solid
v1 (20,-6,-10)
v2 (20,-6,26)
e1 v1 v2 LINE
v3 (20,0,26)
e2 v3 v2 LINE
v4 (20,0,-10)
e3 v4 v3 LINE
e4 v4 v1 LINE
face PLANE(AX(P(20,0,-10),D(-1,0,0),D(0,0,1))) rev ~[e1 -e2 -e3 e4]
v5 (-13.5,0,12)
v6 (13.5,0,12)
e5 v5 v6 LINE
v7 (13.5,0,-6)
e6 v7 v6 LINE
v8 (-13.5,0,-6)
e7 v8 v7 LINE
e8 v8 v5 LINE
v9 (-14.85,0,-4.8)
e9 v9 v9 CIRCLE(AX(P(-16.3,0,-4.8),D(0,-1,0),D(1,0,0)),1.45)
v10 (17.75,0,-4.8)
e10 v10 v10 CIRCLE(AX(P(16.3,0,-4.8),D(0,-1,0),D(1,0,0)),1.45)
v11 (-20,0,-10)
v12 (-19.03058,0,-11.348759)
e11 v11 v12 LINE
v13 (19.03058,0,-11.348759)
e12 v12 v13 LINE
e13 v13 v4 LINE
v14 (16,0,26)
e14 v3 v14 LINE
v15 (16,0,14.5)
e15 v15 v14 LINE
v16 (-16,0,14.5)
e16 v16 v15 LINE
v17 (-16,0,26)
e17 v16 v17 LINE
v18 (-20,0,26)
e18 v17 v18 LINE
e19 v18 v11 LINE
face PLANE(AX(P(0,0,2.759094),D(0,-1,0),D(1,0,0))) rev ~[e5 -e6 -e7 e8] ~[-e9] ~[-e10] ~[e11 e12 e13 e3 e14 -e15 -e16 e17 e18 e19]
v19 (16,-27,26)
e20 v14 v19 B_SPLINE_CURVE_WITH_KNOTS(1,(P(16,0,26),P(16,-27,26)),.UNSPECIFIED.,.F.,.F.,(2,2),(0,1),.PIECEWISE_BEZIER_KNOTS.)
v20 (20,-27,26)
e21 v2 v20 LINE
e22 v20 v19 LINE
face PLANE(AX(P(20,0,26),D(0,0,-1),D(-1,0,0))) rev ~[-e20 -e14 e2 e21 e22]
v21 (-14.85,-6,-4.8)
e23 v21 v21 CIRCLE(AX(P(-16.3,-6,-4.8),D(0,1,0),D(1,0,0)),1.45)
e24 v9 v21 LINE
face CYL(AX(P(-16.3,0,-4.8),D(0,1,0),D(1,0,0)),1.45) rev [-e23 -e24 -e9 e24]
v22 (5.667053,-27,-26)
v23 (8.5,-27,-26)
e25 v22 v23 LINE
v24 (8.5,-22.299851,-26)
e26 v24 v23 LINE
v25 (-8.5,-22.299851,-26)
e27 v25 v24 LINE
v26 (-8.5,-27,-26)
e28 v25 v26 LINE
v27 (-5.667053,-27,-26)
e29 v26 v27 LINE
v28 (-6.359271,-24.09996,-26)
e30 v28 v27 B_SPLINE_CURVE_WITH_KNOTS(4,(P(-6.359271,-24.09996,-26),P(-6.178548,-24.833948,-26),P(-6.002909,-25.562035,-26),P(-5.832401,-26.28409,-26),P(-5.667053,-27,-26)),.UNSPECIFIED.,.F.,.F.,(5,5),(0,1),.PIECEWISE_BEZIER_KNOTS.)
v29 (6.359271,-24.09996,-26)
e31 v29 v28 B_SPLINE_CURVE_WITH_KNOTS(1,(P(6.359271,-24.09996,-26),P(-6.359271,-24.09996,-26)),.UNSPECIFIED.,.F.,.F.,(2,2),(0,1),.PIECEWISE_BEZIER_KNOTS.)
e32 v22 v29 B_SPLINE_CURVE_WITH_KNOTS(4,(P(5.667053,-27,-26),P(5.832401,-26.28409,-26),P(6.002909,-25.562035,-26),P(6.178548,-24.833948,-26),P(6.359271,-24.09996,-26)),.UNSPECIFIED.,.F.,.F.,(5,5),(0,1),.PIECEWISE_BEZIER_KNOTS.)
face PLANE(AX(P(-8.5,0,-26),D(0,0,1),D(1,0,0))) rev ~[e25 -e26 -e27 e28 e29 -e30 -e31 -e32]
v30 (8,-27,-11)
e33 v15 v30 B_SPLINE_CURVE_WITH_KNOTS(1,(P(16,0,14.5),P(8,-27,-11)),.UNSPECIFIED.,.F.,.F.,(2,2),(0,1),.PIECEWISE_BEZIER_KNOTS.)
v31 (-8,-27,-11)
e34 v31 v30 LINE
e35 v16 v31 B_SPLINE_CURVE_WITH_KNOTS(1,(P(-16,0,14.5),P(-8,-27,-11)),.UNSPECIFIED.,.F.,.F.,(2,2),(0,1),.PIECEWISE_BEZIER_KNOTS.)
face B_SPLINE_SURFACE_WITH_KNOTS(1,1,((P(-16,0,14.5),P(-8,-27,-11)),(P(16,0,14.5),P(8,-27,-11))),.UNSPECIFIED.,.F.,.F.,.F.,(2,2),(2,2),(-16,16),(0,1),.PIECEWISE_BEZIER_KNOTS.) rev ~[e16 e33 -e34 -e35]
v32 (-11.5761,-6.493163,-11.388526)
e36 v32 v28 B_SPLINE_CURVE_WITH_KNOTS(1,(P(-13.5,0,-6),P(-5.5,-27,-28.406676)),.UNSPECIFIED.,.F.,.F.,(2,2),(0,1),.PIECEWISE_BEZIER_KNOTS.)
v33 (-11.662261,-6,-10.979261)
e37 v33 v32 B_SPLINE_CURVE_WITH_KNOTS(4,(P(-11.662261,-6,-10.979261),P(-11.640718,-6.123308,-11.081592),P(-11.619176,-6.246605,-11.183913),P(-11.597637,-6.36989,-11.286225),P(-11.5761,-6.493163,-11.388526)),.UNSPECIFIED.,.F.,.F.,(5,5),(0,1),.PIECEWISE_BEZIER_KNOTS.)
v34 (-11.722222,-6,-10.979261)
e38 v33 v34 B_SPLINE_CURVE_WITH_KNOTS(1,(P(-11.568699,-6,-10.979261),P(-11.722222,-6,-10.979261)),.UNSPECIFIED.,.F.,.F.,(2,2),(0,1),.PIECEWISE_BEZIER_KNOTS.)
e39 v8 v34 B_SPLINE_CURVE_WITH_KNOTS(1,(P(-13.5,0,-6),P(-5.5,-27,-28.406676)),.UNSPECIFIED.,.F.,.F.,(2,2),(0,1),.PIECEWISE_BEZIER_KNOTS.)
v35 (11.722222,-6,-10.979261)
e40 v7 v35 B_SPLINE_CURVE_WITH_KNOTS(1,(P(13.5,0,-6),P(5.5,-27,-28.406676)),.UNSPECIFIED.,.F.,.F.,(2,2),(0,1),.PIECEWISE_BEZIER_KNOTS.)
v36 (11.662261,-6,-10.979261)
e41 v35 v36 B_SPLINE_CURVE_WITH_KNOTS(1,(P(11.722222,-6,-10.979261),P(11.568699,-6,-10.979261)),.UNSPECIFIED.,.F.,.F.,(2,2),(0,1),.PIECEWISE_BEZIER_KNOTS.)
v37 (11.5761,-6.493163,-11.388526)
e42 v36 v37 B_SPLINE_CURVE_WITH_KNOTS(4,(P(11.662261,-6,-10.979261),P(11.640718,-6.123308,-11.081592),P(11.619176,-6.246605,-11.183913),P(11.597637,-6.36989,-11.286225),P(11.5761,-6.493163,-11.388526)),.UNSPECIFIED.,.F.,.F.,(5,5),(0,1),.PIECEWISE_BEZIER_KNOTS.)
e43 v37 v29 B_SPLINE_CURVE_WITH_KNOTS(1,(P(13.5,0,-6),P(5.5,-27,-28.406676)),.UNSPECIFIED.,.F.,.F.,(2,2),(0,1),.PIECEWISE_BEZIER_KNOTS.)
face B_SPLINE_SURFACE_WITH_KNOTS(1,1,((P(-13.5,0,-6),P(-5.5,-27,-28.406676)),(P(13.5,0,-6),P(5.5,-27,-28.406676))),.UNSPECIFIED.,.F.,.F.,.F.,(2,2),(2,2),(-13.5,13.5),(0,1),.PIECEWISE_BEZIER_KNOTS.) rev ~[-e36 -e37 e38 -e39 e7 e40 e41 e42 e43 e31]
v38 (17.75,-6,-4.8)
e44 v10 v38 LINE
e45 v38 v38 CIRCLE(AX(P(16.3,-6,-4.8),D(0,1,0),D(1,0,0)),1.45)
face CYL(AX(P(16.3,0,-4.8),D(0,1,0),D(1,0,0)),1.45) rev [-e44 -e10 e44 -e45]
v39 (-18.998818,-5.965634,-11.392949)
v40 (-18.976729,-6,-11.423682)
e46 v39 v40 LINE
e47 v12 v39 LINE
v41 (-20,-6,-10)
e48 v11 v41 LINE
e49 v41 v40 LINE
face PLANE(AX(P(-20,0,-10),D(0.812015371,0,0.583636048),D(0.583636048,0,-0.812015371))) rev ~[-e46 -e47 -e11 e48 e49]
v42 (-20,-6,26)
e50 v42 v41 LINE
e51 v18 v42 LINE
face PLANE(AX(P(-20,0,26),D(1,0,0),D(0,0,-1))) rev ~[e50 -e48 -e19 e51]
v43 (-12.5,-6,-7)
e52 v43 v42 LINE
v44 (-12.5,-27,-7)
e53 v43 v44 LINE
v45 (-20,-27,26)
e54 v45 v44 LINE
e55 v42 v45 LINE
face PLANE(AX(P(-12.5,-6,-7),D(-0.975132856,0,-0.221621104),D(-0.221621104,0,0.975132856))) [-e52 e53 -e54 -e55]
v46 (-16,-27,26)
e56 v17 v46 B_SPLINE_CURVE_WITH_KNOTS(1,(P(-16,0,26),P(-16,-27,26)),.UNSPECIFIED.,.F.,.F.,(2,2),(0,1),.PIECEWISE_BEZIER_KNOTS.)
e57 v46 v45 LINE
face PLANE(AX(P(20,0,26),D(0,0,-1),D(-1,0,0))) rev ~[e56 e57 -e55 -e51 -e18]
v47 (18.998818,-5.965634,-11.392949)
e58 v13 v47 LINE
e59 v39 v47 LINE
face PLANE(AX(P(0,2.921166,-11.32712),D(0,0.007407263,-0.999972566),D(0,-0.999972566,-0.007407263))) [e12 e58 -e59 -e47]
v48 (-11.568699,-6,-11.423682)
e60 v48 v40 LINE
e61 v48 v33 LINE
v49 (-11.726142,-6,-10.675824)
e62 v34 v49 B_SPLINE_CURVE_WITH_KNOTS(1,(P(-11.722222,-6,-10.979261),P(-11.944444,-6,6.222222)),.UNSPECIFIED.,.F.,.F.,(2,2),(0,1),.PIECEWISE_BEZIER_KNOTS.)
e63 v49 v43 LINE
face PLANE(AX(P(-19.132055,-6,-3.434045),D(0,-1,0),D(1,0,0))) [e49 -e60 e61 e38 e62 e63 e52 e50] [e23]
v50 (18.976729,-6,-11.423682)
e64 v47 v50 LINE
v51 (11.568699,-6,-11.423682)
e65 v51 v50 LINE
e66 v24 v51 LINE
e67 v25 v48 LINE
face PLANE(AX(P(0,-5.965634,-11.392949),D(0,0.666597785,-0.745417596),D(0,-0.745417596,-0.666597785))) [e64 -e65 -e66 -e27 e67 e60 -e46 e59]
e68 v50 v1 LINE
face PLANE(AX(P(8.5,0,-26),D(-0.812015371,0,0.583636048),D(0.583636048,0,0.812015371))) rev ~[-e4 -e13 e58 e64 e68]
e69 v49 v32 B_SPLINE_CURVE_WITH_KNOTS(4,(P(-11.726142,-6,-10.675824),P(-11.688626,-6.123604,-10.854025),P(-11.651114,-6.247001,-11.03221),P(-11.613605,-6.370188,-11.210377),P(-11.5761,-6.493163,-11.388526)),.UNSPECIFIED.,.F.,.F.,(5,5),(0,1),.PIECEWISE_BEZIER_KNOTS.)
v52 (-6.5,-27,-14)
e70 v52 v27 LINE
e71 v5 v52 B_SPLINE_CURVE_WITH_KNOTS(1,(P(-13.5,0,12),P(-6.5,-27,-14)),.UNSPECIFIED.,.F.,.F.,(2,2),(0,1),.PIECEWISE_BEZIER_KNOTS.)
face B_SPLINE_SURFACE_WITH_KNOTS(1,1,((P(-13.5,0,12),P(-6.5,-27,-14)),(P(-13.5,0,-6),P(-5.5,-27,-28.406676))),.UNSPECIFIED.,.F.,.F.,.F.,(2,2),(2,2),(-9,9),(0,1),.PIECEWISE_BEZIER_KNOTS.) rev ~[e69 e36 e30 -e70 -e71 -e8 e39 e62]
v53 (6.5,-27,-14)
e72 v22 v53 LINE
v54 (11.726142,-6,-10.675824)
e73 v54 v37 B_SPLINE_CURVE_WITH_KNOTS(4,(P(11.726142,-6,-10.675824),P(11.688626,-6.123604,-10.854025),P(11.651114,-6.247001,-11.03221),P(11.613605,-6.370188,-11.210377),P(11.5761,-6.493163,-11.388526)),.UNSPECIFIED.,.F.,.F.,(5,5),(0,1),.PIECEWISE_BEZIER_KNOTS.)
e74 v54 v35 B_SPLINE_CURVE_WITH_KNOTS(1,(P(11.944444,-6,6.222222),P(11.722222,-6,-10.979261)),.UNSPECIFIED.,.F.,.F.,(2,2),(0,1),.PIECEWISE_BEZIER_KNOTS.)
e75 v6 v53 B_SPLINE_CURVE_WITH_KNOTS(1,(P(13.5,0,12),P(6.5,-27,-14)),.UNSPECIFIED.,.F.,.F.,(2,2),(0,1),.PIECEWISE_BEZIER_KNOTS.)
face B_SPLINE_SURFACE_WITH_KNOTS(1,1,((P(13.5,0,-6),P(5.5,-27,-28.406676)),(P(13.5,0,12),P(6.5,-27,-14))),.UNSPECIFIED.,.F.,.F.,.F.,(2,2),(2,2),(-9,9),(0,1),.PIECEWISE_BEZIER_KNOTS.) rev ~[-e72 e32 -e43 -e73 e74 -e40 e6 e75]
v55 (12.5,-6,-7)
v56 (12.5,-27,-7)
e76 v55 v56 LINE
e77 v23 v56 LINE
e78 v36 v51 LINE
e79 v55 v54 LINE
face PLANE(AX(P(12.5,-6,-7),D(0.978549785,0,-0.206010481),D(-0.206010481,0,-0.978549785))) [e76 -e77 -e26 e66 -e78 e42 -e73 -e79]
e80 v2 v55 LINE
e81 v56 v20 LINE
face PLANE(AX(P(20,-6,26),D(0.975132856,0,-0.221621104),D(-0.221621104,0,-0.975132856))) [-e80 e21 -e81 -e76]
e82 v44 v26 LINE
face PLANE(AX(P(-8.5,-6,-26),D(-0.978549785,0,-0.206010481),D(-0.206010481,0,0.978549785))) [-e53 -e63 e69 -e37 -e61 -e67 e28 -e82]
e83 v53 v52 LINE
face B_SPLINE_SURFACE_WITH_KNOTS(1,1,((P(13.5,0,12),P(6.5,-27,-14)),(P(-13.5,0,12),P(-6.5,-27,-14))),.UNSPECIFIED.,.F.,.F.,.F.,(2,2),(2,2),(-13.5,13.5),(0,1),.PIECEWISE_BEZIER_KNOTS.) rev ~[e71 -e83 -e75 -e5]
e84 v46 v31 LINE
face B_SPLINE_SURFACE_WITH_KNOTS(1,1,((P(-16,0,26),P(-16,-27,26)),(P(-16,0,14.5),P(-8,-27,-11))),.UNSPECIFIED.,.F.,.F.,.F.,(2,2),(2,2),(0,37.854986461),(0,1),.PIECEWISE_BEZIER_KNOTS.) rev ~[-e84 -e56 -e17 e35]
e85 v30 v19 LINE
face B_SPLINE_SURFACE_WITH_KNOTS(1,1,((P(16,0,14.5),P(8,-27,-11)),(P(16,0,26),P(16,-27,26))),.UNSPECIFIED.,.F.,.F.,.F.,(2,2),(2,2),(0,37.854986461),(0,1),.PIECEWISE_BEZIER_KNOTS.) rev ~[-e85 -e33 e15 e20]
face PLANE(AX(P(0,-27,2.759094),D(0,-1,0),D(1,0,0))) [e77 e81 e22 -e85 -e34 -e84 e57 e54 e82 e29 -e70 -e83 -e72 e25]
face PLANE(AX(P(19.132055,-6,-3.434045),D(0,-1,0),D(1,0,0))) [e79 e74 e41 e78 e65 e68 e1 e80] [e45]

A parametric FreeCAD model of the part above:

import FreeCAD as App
import Part
import Sketcher

doc = App.newDocument("Part")
body = doc.addObject("PartDesign::Body", "Body")

sketch1 = doc.addObject("Sketcher::SketchObject", "Sketch")
body.addObject(sketch1)
sketch1.AttachmentSupport = (doc.XZ_Plane, [""])
sketch1.MapMode = "FlatFace"
sketch1.addGeometry(Part.LineSegment(App.Vector(-8.5, -26, 0), App.Vector(8.5, -26, 0)), False)
sketch1.addGeometry(Part.LineSegment(App.Vector(8.5, -26, 0), App.Vector(20, -10, 0)), False)
sketch1.addGeometry(Part.LineSegment(App.Vector(20, -10, 0), App.Vector(20, 26, 0)), False)
sketch1.addGeometry(Part.LineSegment(App.Vector(20, 26, 0), App.Vector(-20, 26, 0)), False)
sketch1.addGeometry(Part.LineSegment(App.Vector(-20, 26, 0), App.Vector(-20, -10, 0)), False)
sketch1.addGeometry(Part.LineSegment(App.Vector(-20, -10, 0), App.Vector(-8.5, -26, 0)), False)
sketch1.addGeometry(Part.Circle(App.Vector(-16.3, -4.8, 0), App.Vector(0, 0, 1), 1.4), False)
sketch1.addGeometry(Part.Circle(App.Vector(16.3, -4.8, 0), App.Vector(0, 0, 1), 1.4), False)
sketch1.addConstraint(Sketcher.Constraint("Coincident", 0, 2, 1, 1))
sketch1.addConstraint(Sketcher.Constraint("Coincident", 1, 2, 2, 1))
sketch1.addConstraint(Sketcher.Constraint("Coincident", 2, 2, 3, 1))
sketch1.addConstraint(Sketcher.Constraint("Coincident", 3, 2, 4, 1))
sketch1.addConstraint(Sketcher.Constraint("Coincident", 4, 2, 5, 1))
sketch1.addConstraint(Sketcher.Constraint("Coincident", 5, 2, 0, 1))
sketch1.addConstraint(Sketcher.Constraint("Horizontal", 0))
sketch1.addConstraint(Sketcher.Constraint("Vertical", 2))
sketch1.addConstraint(Sketcher.Constraint("Horizontal", 3))
sketch1.addConstraint(Sketcher.Constraint("Vertical", 4))
sketch1.addConstraint(Sketcher.Constraint("Equal", 6, 7))
sketch1.addConstraint(Sketcher.Constraint("Symmetric", 6, 3, 7, 3, -2))
sketch1.addConstraint(Sketcher.Constraint("Symmetric", 1, 2, 4, 2, -2))
sketch1.addConstraint(Sketcher.Constraint("Equal", 1, 5))
sketch1.addConstraint(Sketcher.Constraint("Diameter", 6, 2.9))
sketch1.addConstraint(Sketcher.Constraint("DistanceX", 0, 1, 0, 2, 17.0))
sketch1.addConstraint(Sketcher.Constraint("DistanceX", 3, 2, 3, 1, 40.0))
sketch1.addConstraint(Sketcher.Constraint("DistanceY", 2, 1, 2, 2, 36.0))
sketch1.addConstraint(Sketcher.Constraint("DistanceY", 0, 2, -1, 1, 26.0))
sketch1.addConstraint(Sketcher.Constraint("DistanceY", 1, 2, -1, 1, 10.0))
sketch1.addConstraint(Sketcher.Constraint("DistanceX", 6, 3, -1, 1, 16.3))
sketch1.addConstraint(Sketcher.Constraint("DistanceY", 6, 3, -1, 1, 4.8))
pad1 = doc.addObject("PartDesign::Pad", "Pad")
body.addObject(pad1)
pad1.Profile = sketch1
pad1.Length = 27

sketch2 = doc.addObject("Sketcher::SketchObject", "Sketch001")
body.addObject(sketch2)
sketch2.AttachmentSupport = (doc.XZ_Plane, [""])
sketch2.MapMode = "FlatFace"
sketch2.AttachmentOffset = App.Placement(App.Vector(0, 0, 6), App.Rotation())
sketch2.addGeometry(Part.LineSegment(App.Vector(26, -25, 0), App.Vector(26, 0, 0)), False)
sketch2.addGeometry(Part.LineSegment(App.Vector(26, 0, 0), App.Vector(20, 26, 0)), False)
sketch2.addGeometry(Part.LineSegment(App.Vector(20, 26, 0), App.Vector(12, -7, 0)), False)
sketch2.addGeometry(Part.LineSegment(App.Vector(12, -7, 0), App.Vector(8, -26, 0)), False)
sketch2.addGeometry(Part.LineSegment(App.Vector(8, -26, 0), App.Vector(26, -25, 0)), False)
sketch2.addGeometry(Part.LineSegment(App.Vector(-8, -26, 0), App.Vector(-12, -7, 0)), False)
sketch2.addGeometry(Part.LineSegment(App.Vector(-12, -7, 0), App.Vector(-20, 26, 0)), False)
sketch2.addGeometry(Part.LineSegment(App.Vector(-20, 26, 0), App.Vector(-26, 0, 0)), False)
sketch2.addGeometry(Part.LineSegment(App.Vector(-26, 0, 0), App.Vector(-26, -25, 0)), False)
sketch2.addGeometry(Part.LineSegment(App.Vector(-26, -25, 0), App.Vector(-8, -26, 0)), False)
sketch2.addConstraint(Sketcher.Constraint("Coincident", 0, 2, 1, 1))
sketch2.addConstraint(Sketcher.Constraint("Coincident", 1, 2, 2, 1))
sketch2.addConstraint(Sketcher.Constraint("Coincident", 2, 2, 3, 1))
sketch2.addConstraint(Sketcher.Constraint("Coincident", 3, 2, 4, 1))
sketch2.addConstraint(Sketcher.Constraint("Coincident", 4, 2, 0, 1))
sketch2.addConstraint(Sketcher.Constraint("Coincident", 5, 2, 6, 1))
sketch2.addConstraint(Sketcher.Constraint("Coincident", 6, 2, 7, 1))
sketch2.addConstraint(Sketcher.Constraint("Coincident", 7, 2, 8, 1))
sketch2.addConstraint(Sketcher.Constraint("Coincident", 8, 2, 9, 1))
sketch2.addConstraint(Sketcher.Constraint("Coincident", 9, 2, 5, 1))
sketch2.addConstraint(Sketcher.Constraint("Symmetric", 2, 2, 5, 2, -2))
sketch2.addConstraint(Sketcher.Constraint("Symmetric", 1, 2, 6, 2, -2))
sketch2.addConstraint(Sketcher.Constraint("Symmetric", 0, 2, 7, 2, -2))
sketch2.addConstraint(Sketcher.Constraint("Symmetric", 4, 2, 8, 2, -2))
sketch2.addConstraint(Sketcher.Constraint("Symmetric", 3, 2, 9, 2, -2))
sketch2.addConstraint(Sketcher.Constraint("DistanceX", -1, 1, 1, 2, 20.0))
sketch2.addConstraint(Sketcher.Constraint("DistanceY", -1, 1, 1, 2, 26.0))
sketch2.addConstraint(Sketcher.Constraint("DistanceY", 2, 2, -1, 1, 7.0))
sketch2.addConstraint(Sketcher.Constraint("DistanceY", 3, 2, -1, 1, 26.0))
sketch2.addConstraint(Sketcher.Constraint("DistanceY", 4, 2, -1, 1, 25.0))
sketch2.addConstraint(Sketcher.Constraint("DistanceX", 3, 2, 2, 2, 4.0))
sketch2.addConstraint(Sketcher.Constraint("DistanceX", 3, 2, 4, 2, 18.0))
sketch2.addConstraint(Sketcher.Constraint("DistanceX", 5, 2, 2, 2, 25.0))
sketch2.addConstraint(Sketcher.Constraint("Distance", 1, 26.8))
sketch2.addConstraint(Sketcher.Constraint("Distance", 0, 25.000181))
pocket1 = doc.addObject("PartDesign::Pocket", "Pocket")
body.addObject(pocket1)
pocket1.Profile = sketch2
pocket1.Length = 23
pocket1.Reversed = True

sketch3 = doc.addObject("Sketcher::SketchObject", "Sketch002")
body.addObject(sketch3)
sketch3.AttachmentSupport = (doc.XZ_Plane, [""])
sketch3.MapMode = "FlatFace"
sketch3.addGeometry(Part.LineSegment(App.Vector(-16, 26, 0), App.Vector(-16, 14, 0)), False)
sketch3.addGeometry(Part.LineSegment(App.Vector(-16, 14, 0), App.Vector(16, 14, 0)), False)
sketch3.addGeometry(Part.LineSegment(App.Vector(16, 14, 0), App.Vector(16, 26, 0)), False)
sketch3.addGeometry(Part.LineSegment(App.Vector(16, 26, 0), App.Vector(-16, 26, 0)), False)
sketch3.addConstraint(Sketcher.Constraint("Coincident", 0, 2, 1, 1))
sketch3.addConstraint(Sketcher.Constraint("Coincident", 1, 2, 2, 1))
sketch3.addConstraint(Sketcher.Constraint("Coincident", 2, 2, 3, 1))
sketch3.addConstraint(Sketcher.Constraint("Coincident", 3, 2, 0, 1))
sketch3.addConstraint(Sketcher.Constraint("Vertical", 0))
sketch3.addConstraint(Sketcher.Constraint("Horizontal", 1))
sketch3.addConstraint(Sketcher.Constraint("Vertical", 2))
sketch3.addConstraint(Sketcher.Constraint("Horizontal", 3))
sketch3.addConstraint(Sketcher.Constraint("DistanceX", 1, 1, 1, 2, 32.0))
sketch3.addConstraint(Sketcher.Constraint("DistanceY", 0, 2, 0, 1, 11.5))
sketch3.addConstraint(Sketcher.Constraint("DistanceX", 0, 2, -1, 1, 16.0))
sketch3.addConstraint(Sketcher.Constraint("DistanceY", -1, 1, 2, 2, 26.0))

sketch4 = doc.addObject("Sketcher::SketchObject", "Sketch003")
body.addObject(sketch4)
sketch4.AttachmentSupport = (doc.XZ_Plane, [""])
sketch4.MapMode = "FlatFace"
sketch4.AttachmentOffset = App.Placement(App.Vector(0, 0, 27), App.Rotation())
sketch4.addGeometry(Part.LineSegment(App.Vector(8, -11, 0), App.Vector(16, 26, 0)), False)
sketch4.addGeometry(Part.LineSegment(App.Vector(16, 26, 0), App.Vector(-16, 26, 0)), False)
sketch4.addGeometry(Part.LineSegment(App.Vector(-16, 26, 0), App.Vector(-8, -11, 0)), False)
sketch4.addGeometry(Part.LineSegment(App.Vector(-8, -11, 0), App.Vector(8, -11, 0)), False)
sketch4.addConstraint(Sketcher.Constraint("Coincident", 0, 2, 1, 1))
sketch4.addConstraint(Sketcher.Constraint("Coincident", 1, 2, 2, 1))
sketch4.addConstraint(Sketcher.Constraint("Coincident", 2, 2, 3, 1))
sketch4.addConstraint(Sketcher.Constraint("Coincident", 3, 2, 0, 1))
sketch4.addConstraint(Sketcher.Constraint("Horizontal", 1))
sketch4.addConstraint(Sketcher.Constraint("Horizontal", 3))
sketch4.addConstraint(Sketcher.Constraint("Equal", 0, 2))
sketch4.addConstraint(Sketcher.Constraint("DistanceX", 1, 2, 1, 1, 32.0))
sketch4.addConstraint(Sketcher.Constraint("DistanceX", 3, 1, 3, 2, 16.0))
sketch4.addConstraint(Sketcher.Constraint("DistanceX", -1, 1, 0, 2, 16.0))
sketch4.addConstraint(Sketcher.Constraint("DistanceY", -1, 1, 0, 2, 26.0))
sketch4.addConstraint(Sketcher.Constraint("DistanceY", 2, 2, -1, 1, 11.0))

subtractiveloft = doc.addObject("PartDesign::SubtractiveLoft", "SubtractiveLoft")
body.addObject(subtractiveloft)
subtractiveloft.Profile = sketch3
subtractiveloft.Sections = [sketch4]

sketch5 = doc.addObject("Sketcher::SketchObject", "Sketch004")
body.addObject(sketch5)
sketch5.AttachmentSupport = (doc.YZ_Plane, [""])
sketch5.MapMode = "FlatFace"
sketch5.addGeometry(Part.LineSegment(App.Vector(-6, -11, 0), App.Vector(-27, -30, 0)), False)
sketch5.addGeometry(Part.LineSegment(App.Vector(-27, -30, 0), App.Vector(4, -39, 0)), False)
sketch5.addGeometry(Part.LineSegment(App.Vector(4, -39, 0), App.Vector(3, -11, 0)), False)
sketch5.addGeometry(Part.LineSegment(App.Vector(3, -11, 0), App.Vector(-6, -11, 0)), False)
sketch5.addConstraint(Sketcher.Constraint("Coincident", 0, 2, 1, 1))
sketch5.addConstraint(Sketcher.Constraint("Coincident", 1, 2, 2, 1))
sketch5.addConstraint(Sketcher.Constraint("Coincident", 2, 2, 3, 1))
sketch5.addConstraint(Sketcher.Constraint("Coincident", 3, 2, 0, 1))
sketch5.addConstraint(Sketcher.Constraint("DistanceX", 3, 2, 2, 2, 8.8868))
sketch5.addConstraint(Sketcher.Constraint("Distance", 0, 28.473342))
sketch5.addConstraint(Sketcher.Constraint("DistanceY", 1, 2, -1, 1, 39.435741))
sketch5.addConstraint(Sketcher.Constraint("DistanceY", 2, 2, -1, 1, 11.32712))
sketch5.addConstraint(Sketcher.Constraint("DistanceY", 3, 2, -1, 1, 11.392949))
sketch5.addConstraint(Sketcher.Constraint("DistanceX", 0, 2, 2, 2, 30.11133))
sketch5.addConstraint(Sketcher.Constraint("Distance", 1, 32.265932))
sketch5.addConstraint(Sketcher.Constraint("DistanceX", 0, 2, -1, 1, 27.190164))
pocket2 = doc.addObject("PartDesign::Pocket", "Pocket001")
body.addObject(pocket2)
pocket2.Profile = sketch5
pocket2.Type = "ThroughAll"
pocket2.Midplane = True

sketch6 = doc.addObject("Sketcher::SketchObject", "Sketch005")
body.addObject(sketch6)
sketch6.AttachmentSupport = (doc.XZ_Plane, [""])
sketch6.MapMode = "FlatFace"
sketch6.addGeometry(Part.LineSegment(App.Vector(-14, 12, 0), App.Vector(-14, -6, 0)), False)
sketch6.addGeometry(Part.LineSegment(App.Vector(-14, -6, 0), App.Vector(14, -6, 0)), False)
sketch6.addGeometry(Part.LineSegment(App.Vector(14, -6, 0), App.Vector(14, 12, 0)), False)
sketch6.addGeometry(Part.LineSegment(App.Vector(14, 12, 0), App.Vector(-14, 12, 0)), False)
sketch6.addConstraint(Sketcher.Constraint("Coincident", 0, 2, 1, 1))
sketch6.addConstraint(Sketcher.Constraint("Coincident", 1, 2, 2, 1))
sketch6.addConstraint(Sketcher.Constraint("Coincident", 2, 2, 3, 1))
sketch6.addConstraint(Sketcher.Constraint("Coincident", 3, 2, 0, 1))
sketch6.addConstraint(Sketcher.Constraint("Vertical", 0))
sketch6.addConstraint(Sketcher.Constraint("Horizontal", 1))
sketch6.addConstraint(Sketcher.Constraint("Vertical", 2))
sketch6.addConstraint(Sketcher.Constraint("Horizontal", 3))
sketch6.addConstraint(Sketcher.Constraint("DistanceX", 1, 1, 1, 2, 27.0))
sketch6.addConstraint(Sketcher.Constraint("DistanceY", 0, 2, 0, 1, 18.0))
sketch6.addConstraint(Sketcher.Constraint("DistanceY", 0, 2, -1, 1, 6.0))
sketch6.addConstraint(Sketcher.Constraint("DistanceX", 0, 2, -1, 1, 13.5))

sketch7 = doc.addObject("Sketcher::SketchObject", "Sketch006")
body.addObject(sketch7)
sketch7.AttachmentSupport = (doc.XZ_Plane, [""])
sketch7.MapMode = "FlatFace"
sketch7.AttachmentOffset = App.Placement(App.Vector(0, 0, 27), App.Rotation())
sketch7.addGeometry(Part.LineSegment(App.Vector(6, -28, 0), App.Vector(6, -14, 0)), False)
sketch7.addGeometry(Part.LineSegment(App.Vector(6, -14, 0), App.Vector(-6, -14, 0)), False)
sketch7.addGeometry(Part.LineSegment(App.Vector(-6, -14, 0), App.Vector(-6, -28, 0)), False)
sketch7.addGeometry(Part.LineSegment(App.Vector(-6, -28, 0), App.Vector(6, -28, 0)), False)
sketch7.addConstraint(Sketcher.Constraint("Coincident", 0, 2, 1, 1))
sketch7.addConstraint(Sketcher.Constraint("Coincident", 1, 2, 2, 1))
sketch7.addConstraint(Sketcher.Constraint("Coincident", 2, 2, 3, 1))
sketch7.addConstraint(Sketcher.Constraint("Coincident", 3, 2, 0, 1))
sketch7.addConstraint(Sketcher.Constraint("Horizontal", 1))
sketch7.addConstraint(Sketcher.Constraint("Horizontal", 3))
sketch7.addConstraint(Sketcher.Constraint("Equal", 0, 2))
sketch7.addConstraint(Sketcher.Constraint("DistanceX", 1, 2, 1, 1, 13.0))
sketch7.addConstraint(Sketcher.Constraint("DistanceX", 3, 1, 3, 2, 11.0))
sketch7.addConstraint(Sketcher.Constraint("DistanceY", 0, 2, -1, 1, 14.0))
sketch7.addConstraint(Sketcher.Constraint("DistanceX", -1, 1, 0, 2, 6.5))
sketch7.addConstraint(Sketcher.Constraint("Distance", 0, 14.44134))

subtractiveloft2 = doc.addObject("PartDesign::SubtractiveLoft", "SubtractiveLoft001")
body.addObject(subtractiveloft2)
subtractiveloft2.Profile = sketch6
subtractiveloft2.Sections = [sketch7]

doc.recompute()
